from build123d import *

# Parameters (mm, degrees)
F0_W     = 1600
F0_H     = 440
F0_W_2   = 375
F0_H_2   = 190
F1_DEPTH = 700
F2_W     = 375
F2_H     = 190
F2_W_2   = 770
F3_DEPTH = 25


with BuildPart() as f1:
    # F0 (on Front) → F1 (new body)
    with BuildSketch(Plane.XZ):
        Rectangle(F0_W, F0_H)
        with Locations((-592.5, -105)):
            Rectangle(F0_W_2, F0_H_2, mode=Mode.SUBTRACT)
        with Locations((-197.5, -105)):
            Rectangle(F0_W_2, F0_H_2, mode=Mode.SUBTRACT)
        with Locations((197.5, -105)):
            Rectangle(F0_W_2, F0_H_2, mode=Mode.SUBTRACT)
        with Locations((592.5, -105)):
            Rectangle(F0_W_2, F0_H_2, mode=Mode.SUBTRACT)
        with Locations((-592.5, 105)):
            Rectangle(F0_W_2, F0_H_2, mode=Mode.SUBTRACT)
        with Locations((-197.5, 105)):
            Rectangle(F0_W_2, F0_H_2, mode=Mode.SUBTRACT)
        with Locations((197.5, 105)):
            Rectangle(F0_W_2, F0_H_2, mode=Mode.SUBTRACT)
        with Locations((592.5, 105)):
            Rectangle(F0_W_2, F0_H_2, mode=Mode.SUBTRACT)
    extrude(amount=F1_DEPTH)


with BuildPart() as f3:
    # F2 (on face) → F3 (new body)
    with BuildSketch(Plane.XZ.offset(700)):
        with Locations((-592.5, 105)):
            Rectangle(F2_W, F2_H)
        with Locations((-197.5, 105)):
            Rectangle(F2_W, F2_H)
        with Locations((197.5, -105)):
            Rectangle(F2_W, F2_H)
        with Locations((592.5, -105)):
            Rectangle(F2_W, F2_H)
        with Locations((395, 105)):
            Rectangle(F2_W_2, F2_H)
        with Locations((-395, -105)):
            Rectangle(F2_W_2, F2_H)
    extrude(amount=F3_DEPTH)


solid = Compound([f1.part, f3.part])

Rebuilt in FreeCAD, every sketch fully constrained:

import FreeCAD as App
import Part
import Sketcher
from FreeCAD import Vector


def add_polygon(sketch, points):
    """Adds a closed chain of lines whose ends are joined by coincident constraints."""
    first, n = sketch.GeometryCount, len(points)
    for a, b in zip(points, points[1:] + points[:1]):
        sketch.addGeometry(Part.LineSegment(App.Vector(*a, 0), App.Vector(*b, 0)), False)
    for i in range(n):
        sketch.addConstraint(Sketcher.Constraint("Coincident", first + i, 2, first + (i + 1) % n, 1))

doc = App.newDocument("Part")
body = doc.addObject("PartDesign::Body", "Body")

# Sketch on XZ plane
sketch1 = doc.addObject("Sketcher::SketchObject", "Sketch")
body.addObject(sketch1)
sketch1.AttachmentSupport = (doc.XZ_Plane, [""])
sketch1.MapMode = "FlatFace"
add_polygon(sketch1, [(-800, 220), (-800, -220), (800, -220), (800, 220)])  # lines 0-3
add_polygon(sketch1, [(-405, -200), (-780, -200), (-780, -10), (-405, -10)])  # lines 4-7
add_polygon(sketch1, [(-10, -200), (-385, -200), (-385, -10), (-10, -10)])  # lines 8-11
add_polygon(sketch1, [(385, -200), (10, -200), (10, -10), (385, -10)])  # lines 12-15
add_polygon(sketch1, [(780, -200), (405, -200), (405, -10), (780, -10)])  # lines 16-19
add_polygon(sketch1, [(-405, 10), (-780, 10), (-780, 200), (-405, 200)])  # lines 20-23
add_polygon(sketch1, [(-10, 10), (-385, 10), (-385, 200), (-10, 200)])  # lines 24-27
add_polygon(sketch1, [(385, 10), (10, 10), (10, 200), (385, 200)])  # lines 28-31
add_polygon(sketch1, [(780, 10), (405, 10), (405, 200), (780, 200)])  # lines 32-35
sketch1.addConstraint([
    Sketcher.Constraint("Vertical", 0),
    Sketcher.Constraint("Horizontal", 1),
    Sketcher.Constraint("Vertical", 2),
    Sketcher.Constraint("Horizontal", 3),
    Sketcher.Constraint("Horizontal", 4),
    Sketcher.Constraint("Vertical", 5),
    Sketcher.Constraint("Horizontal", 6),
    Sketcher.Constraint("Vertical", 7),
    Sketcher.Constraint("Horizontal", 8),
    Sketcher.Constraint("Vertical", 9),
    Sketcher.Constraint("Horizontal", 10),
    Sketcher.Constraint("Vertical", 11),
    Sketcher.Constraint("Horizontal", 12),
    Sketcher.Constraint("Vertical", 13),
    Sketcher.Constraint("Horizontal", 14),
    Sketcher.Constraint("Vertical", 15),
    Sketcher.Constraint("Horizontal", 16),
    Sketcher.Constraint("Vertical", 17),
    Sketcher.Constraint("Horizontal", 18),
    Sketcher.Constraint("Vertical", 19),
    Sketcher.Constraint("Horizontal", 20),
    Sketcher.Constraint("Vertical", 21),
    Sketcher.Constraint("Horizontal", 22),
    Sketcher.Constraint("Vertical", 23),
    Sketcher.Constraint("Horizontal", 24),
    Sketcher.Constraint("Vertical", 25),
    Sketcher.Constraint("Horizontal", 26),
    Sketcher.Constraint("Vertical", 27),
    Sketcher.Constraint("Horizontal", 28),
    Sketcher.Constraint("Vertical", 29),
    Sketcher.Constraint("Horizontal", 30),
    Sketcher.Constraint("Vertical", 31),
    Sketcher.Constraint("Horizontal", 32),
    Sketcher.Constraint("Vertical", 33),
    Sketcher.Constraint("Horizontal", 34),
    Sketcher.Constraint("Vertical", 35),
    Sketcher.Constraint("Symmetric", 0, 2, 2, 2, -1, 1),
    Sketcher.Constraint("Symmetric", 18, 2, 20, 2, -1, 1),
    Sketcher.Constraint("Symmetric", 16, 2, 22, 2, -1, 1),
    Sketcher.Constraint("Symmetric", 14, 2, 24, 2, -1, 1),
    Sketcher.Constraint("Symmetric", 12, 2, 26, 2, -1, 1),
    Sketcher.Constraint("Symmetric", 10, 2, 28, 2, -1, 1),
    Sketcher.Constraint("Symmetric", 8, 2, 30, 2, -1, 1),
    Sketcher.Constraint("Symmetric", 6, 2, 32, 2, -1, 1),
    Sketcher.Constraint("Symmetric", 4, 2, 34, 2, -1, 1),
    Sketcher.Constraint("Symmetric", 11, 2, 12, 2, -2),
    Sketcher.Constraint("Symmetric", 9, 2, 14, 2, -2),
    Sketcher.Constraint("Symmetric", 7, 2, 16, 2, -2),
    Sketcher.Constraint("Symmetric", 5, 2, 18, 2, -2),
    Sketcher.Constraint("Horizontal", 7, 2, 8, 2),
    Sketcher.Constraint("Horizontal", 6, 2, 9, 2),
    Sketcher.Constraint("Equal", 6, 8),
    Sketcher.Constraint("DistanceX", 1, 1, 1, 2, 1600.0),
    Sketcher.Constraint("DistanceX", 4, 2, 4, 1, 375.0),
    Sketcher.Constraint("DistanceY", 0, 2, 0, 1, 440.0),
    Sketcher.Constraint("DistanceY", 5, 1, 5, 2, 190.0),
    Sketcher.Constraint("DistanceX", 4, 2, -1, 1, 780.0),
    Sketcher.Constraint("DistanceY", 4, 2, -1, 1, 200.0),
    Sketcher.Constraint("DistanceX", 8, 2, -1, 1, 385.0),
])
pad1 = doc.addObject("PartDesign::Pad", "Pad")
body.addObject(pad1)
pad1.Profile = sketch1
pad1.Length = 700
body2 = doc.addObject("PartDesign::Body", "Body001")
body2.AllowCompound = True

# Sketch on XZ plane
sketch2 = doc.addObject("Sketcher::SketchObject", "Sketch001")
body2.addObject(sketch2)
sketch2.AttachmentSupport = (doc.getObject("XZ_Plane001"), [""])
sketch2.MapMode = "FlatFace"
sketch2.AttachmentOffset = App.Placement(Vector(0, 0, 700), App.Rotation())
add_polygon(sketch2, [(-780, 200), (-780, 10), (-405, 10), (-405, 200)])  # lines 0-3
add_polygon(sketch2, [(-385, 200), (-385, 10), (-10, 10), (-10, 200)])  # lines 4-7
add_polygon(sketch2, [(10, -10), (10, -200), (385, -200), (385, -10)])  # lines 8-11
add_polygon(sketch2, [(405, -10), (405, -200), (780, -200), (780, -10)])  # lines 12-15
add_polygon(sketch2, [(10, 200), (10, 10), (780, 10), (780, 200)])  # lines 16-19
add_polygon(sketch2, [(-780, -10), (-780, -200), (-10, -200), (-10, -10)])  # lines 20-23
sketch2.addConstraint([
    Sketcher.Constraint("Vertical", 0),
    Sketcher.Constraint("Horizontal", 1),
    Sketcher.Constraint("Vertical", 2),
    Sketcher.Constraint("Horizontal", 3),
    Sketcher.Constraint("Vertical", 4),
    Sketcher.Constraint("Horizontal", 5),
    Sketcher.Constraint("Vertical", 6),
    Sketcher.Constraint("Horizontal", 7),
    Sketcher.Constraint("Vertical", 8),
    Sketcher.Constraint("Horizontal", 9),
    Sketcher.Constraint("Vertical", 10),
    Sketcher.Constraint("Horizontal", 11),
    Sketcher.Constraint("Vertical", 12),
    Sketcher.Constraint("Horizontal", 13),
    Sketcher.Constraint("Vertical", 14),
    Sketcher.Constraint("Horizontal", 15),
    Sketcher.Constraint("Vertical", 16),
    Sketcher.Constraint("Horizontal", 17),
    Sketcher.Constraint("Vertical", 18),
    Sketcher.Constraint("Horizontal", 19),
    Sketcher.Constraint("Vertical", 20),
    Sketcher.Constraint("Horizontal", 21),
    Sketcher.Constraint("Vertical", 22),
    Sketcher.Constraint("Horizontal", 23),
    Sketcher.Constraint("Symmetric", 6, 2, 8, 2, -1, 1),
    Sketcher.Constraint("Symmetric", 4, 2, 10, 2, -1, 1),
    Sketcher.Constraint("Symmetric", 2, 2, 12, 2, -1, 1),
    Sketcher.Constraint("Symmetric", 0, 2, 14, 2, -1, 1),
    Sketcher.Constraint("Symmetric", 18, 2, 20, 2, -1, 1),
    Sketcher.Constraint("Symmetric", 16, 2, 22, 2, -1, 1),
    Sketcher.Constraint("Symmetric", 5, 2, 16, 2, -2),
    Sketcher.Constraint("Symmetric", 0, 2, 17, 2, -2),
    Sketcher.Constraint("Horizontal", 3, 2, 6, 2),
    Sketcher.Constraint("Horizontal", 7, 2, 18, 2),
    Sketcher.Constraint("Equal", 3, 5),
    Sketcher.Constraint("DistanceX", 1, 1, 1, 2, 375.0),
    Sketcher.Constraint("DistanceX", 17, 1, 17, 2, 770.0),
    Sketcher.Constraint("DistanceY", 0, 2, 0, 1, 190.0),
    Sketcher.Constraint("DistanceX", 0, 2, -1, 1, 780.0),
    Sketcher.Constraint("DistanceY", -1, 1, 0, 2, 10.0),
])
pad2 = doc.addObject("PartDesign::Pad", "Pad001")
body2.addObject(pad2)
pad2.Profile = sketch2
pad2.Length = 25

doc.recompute()
